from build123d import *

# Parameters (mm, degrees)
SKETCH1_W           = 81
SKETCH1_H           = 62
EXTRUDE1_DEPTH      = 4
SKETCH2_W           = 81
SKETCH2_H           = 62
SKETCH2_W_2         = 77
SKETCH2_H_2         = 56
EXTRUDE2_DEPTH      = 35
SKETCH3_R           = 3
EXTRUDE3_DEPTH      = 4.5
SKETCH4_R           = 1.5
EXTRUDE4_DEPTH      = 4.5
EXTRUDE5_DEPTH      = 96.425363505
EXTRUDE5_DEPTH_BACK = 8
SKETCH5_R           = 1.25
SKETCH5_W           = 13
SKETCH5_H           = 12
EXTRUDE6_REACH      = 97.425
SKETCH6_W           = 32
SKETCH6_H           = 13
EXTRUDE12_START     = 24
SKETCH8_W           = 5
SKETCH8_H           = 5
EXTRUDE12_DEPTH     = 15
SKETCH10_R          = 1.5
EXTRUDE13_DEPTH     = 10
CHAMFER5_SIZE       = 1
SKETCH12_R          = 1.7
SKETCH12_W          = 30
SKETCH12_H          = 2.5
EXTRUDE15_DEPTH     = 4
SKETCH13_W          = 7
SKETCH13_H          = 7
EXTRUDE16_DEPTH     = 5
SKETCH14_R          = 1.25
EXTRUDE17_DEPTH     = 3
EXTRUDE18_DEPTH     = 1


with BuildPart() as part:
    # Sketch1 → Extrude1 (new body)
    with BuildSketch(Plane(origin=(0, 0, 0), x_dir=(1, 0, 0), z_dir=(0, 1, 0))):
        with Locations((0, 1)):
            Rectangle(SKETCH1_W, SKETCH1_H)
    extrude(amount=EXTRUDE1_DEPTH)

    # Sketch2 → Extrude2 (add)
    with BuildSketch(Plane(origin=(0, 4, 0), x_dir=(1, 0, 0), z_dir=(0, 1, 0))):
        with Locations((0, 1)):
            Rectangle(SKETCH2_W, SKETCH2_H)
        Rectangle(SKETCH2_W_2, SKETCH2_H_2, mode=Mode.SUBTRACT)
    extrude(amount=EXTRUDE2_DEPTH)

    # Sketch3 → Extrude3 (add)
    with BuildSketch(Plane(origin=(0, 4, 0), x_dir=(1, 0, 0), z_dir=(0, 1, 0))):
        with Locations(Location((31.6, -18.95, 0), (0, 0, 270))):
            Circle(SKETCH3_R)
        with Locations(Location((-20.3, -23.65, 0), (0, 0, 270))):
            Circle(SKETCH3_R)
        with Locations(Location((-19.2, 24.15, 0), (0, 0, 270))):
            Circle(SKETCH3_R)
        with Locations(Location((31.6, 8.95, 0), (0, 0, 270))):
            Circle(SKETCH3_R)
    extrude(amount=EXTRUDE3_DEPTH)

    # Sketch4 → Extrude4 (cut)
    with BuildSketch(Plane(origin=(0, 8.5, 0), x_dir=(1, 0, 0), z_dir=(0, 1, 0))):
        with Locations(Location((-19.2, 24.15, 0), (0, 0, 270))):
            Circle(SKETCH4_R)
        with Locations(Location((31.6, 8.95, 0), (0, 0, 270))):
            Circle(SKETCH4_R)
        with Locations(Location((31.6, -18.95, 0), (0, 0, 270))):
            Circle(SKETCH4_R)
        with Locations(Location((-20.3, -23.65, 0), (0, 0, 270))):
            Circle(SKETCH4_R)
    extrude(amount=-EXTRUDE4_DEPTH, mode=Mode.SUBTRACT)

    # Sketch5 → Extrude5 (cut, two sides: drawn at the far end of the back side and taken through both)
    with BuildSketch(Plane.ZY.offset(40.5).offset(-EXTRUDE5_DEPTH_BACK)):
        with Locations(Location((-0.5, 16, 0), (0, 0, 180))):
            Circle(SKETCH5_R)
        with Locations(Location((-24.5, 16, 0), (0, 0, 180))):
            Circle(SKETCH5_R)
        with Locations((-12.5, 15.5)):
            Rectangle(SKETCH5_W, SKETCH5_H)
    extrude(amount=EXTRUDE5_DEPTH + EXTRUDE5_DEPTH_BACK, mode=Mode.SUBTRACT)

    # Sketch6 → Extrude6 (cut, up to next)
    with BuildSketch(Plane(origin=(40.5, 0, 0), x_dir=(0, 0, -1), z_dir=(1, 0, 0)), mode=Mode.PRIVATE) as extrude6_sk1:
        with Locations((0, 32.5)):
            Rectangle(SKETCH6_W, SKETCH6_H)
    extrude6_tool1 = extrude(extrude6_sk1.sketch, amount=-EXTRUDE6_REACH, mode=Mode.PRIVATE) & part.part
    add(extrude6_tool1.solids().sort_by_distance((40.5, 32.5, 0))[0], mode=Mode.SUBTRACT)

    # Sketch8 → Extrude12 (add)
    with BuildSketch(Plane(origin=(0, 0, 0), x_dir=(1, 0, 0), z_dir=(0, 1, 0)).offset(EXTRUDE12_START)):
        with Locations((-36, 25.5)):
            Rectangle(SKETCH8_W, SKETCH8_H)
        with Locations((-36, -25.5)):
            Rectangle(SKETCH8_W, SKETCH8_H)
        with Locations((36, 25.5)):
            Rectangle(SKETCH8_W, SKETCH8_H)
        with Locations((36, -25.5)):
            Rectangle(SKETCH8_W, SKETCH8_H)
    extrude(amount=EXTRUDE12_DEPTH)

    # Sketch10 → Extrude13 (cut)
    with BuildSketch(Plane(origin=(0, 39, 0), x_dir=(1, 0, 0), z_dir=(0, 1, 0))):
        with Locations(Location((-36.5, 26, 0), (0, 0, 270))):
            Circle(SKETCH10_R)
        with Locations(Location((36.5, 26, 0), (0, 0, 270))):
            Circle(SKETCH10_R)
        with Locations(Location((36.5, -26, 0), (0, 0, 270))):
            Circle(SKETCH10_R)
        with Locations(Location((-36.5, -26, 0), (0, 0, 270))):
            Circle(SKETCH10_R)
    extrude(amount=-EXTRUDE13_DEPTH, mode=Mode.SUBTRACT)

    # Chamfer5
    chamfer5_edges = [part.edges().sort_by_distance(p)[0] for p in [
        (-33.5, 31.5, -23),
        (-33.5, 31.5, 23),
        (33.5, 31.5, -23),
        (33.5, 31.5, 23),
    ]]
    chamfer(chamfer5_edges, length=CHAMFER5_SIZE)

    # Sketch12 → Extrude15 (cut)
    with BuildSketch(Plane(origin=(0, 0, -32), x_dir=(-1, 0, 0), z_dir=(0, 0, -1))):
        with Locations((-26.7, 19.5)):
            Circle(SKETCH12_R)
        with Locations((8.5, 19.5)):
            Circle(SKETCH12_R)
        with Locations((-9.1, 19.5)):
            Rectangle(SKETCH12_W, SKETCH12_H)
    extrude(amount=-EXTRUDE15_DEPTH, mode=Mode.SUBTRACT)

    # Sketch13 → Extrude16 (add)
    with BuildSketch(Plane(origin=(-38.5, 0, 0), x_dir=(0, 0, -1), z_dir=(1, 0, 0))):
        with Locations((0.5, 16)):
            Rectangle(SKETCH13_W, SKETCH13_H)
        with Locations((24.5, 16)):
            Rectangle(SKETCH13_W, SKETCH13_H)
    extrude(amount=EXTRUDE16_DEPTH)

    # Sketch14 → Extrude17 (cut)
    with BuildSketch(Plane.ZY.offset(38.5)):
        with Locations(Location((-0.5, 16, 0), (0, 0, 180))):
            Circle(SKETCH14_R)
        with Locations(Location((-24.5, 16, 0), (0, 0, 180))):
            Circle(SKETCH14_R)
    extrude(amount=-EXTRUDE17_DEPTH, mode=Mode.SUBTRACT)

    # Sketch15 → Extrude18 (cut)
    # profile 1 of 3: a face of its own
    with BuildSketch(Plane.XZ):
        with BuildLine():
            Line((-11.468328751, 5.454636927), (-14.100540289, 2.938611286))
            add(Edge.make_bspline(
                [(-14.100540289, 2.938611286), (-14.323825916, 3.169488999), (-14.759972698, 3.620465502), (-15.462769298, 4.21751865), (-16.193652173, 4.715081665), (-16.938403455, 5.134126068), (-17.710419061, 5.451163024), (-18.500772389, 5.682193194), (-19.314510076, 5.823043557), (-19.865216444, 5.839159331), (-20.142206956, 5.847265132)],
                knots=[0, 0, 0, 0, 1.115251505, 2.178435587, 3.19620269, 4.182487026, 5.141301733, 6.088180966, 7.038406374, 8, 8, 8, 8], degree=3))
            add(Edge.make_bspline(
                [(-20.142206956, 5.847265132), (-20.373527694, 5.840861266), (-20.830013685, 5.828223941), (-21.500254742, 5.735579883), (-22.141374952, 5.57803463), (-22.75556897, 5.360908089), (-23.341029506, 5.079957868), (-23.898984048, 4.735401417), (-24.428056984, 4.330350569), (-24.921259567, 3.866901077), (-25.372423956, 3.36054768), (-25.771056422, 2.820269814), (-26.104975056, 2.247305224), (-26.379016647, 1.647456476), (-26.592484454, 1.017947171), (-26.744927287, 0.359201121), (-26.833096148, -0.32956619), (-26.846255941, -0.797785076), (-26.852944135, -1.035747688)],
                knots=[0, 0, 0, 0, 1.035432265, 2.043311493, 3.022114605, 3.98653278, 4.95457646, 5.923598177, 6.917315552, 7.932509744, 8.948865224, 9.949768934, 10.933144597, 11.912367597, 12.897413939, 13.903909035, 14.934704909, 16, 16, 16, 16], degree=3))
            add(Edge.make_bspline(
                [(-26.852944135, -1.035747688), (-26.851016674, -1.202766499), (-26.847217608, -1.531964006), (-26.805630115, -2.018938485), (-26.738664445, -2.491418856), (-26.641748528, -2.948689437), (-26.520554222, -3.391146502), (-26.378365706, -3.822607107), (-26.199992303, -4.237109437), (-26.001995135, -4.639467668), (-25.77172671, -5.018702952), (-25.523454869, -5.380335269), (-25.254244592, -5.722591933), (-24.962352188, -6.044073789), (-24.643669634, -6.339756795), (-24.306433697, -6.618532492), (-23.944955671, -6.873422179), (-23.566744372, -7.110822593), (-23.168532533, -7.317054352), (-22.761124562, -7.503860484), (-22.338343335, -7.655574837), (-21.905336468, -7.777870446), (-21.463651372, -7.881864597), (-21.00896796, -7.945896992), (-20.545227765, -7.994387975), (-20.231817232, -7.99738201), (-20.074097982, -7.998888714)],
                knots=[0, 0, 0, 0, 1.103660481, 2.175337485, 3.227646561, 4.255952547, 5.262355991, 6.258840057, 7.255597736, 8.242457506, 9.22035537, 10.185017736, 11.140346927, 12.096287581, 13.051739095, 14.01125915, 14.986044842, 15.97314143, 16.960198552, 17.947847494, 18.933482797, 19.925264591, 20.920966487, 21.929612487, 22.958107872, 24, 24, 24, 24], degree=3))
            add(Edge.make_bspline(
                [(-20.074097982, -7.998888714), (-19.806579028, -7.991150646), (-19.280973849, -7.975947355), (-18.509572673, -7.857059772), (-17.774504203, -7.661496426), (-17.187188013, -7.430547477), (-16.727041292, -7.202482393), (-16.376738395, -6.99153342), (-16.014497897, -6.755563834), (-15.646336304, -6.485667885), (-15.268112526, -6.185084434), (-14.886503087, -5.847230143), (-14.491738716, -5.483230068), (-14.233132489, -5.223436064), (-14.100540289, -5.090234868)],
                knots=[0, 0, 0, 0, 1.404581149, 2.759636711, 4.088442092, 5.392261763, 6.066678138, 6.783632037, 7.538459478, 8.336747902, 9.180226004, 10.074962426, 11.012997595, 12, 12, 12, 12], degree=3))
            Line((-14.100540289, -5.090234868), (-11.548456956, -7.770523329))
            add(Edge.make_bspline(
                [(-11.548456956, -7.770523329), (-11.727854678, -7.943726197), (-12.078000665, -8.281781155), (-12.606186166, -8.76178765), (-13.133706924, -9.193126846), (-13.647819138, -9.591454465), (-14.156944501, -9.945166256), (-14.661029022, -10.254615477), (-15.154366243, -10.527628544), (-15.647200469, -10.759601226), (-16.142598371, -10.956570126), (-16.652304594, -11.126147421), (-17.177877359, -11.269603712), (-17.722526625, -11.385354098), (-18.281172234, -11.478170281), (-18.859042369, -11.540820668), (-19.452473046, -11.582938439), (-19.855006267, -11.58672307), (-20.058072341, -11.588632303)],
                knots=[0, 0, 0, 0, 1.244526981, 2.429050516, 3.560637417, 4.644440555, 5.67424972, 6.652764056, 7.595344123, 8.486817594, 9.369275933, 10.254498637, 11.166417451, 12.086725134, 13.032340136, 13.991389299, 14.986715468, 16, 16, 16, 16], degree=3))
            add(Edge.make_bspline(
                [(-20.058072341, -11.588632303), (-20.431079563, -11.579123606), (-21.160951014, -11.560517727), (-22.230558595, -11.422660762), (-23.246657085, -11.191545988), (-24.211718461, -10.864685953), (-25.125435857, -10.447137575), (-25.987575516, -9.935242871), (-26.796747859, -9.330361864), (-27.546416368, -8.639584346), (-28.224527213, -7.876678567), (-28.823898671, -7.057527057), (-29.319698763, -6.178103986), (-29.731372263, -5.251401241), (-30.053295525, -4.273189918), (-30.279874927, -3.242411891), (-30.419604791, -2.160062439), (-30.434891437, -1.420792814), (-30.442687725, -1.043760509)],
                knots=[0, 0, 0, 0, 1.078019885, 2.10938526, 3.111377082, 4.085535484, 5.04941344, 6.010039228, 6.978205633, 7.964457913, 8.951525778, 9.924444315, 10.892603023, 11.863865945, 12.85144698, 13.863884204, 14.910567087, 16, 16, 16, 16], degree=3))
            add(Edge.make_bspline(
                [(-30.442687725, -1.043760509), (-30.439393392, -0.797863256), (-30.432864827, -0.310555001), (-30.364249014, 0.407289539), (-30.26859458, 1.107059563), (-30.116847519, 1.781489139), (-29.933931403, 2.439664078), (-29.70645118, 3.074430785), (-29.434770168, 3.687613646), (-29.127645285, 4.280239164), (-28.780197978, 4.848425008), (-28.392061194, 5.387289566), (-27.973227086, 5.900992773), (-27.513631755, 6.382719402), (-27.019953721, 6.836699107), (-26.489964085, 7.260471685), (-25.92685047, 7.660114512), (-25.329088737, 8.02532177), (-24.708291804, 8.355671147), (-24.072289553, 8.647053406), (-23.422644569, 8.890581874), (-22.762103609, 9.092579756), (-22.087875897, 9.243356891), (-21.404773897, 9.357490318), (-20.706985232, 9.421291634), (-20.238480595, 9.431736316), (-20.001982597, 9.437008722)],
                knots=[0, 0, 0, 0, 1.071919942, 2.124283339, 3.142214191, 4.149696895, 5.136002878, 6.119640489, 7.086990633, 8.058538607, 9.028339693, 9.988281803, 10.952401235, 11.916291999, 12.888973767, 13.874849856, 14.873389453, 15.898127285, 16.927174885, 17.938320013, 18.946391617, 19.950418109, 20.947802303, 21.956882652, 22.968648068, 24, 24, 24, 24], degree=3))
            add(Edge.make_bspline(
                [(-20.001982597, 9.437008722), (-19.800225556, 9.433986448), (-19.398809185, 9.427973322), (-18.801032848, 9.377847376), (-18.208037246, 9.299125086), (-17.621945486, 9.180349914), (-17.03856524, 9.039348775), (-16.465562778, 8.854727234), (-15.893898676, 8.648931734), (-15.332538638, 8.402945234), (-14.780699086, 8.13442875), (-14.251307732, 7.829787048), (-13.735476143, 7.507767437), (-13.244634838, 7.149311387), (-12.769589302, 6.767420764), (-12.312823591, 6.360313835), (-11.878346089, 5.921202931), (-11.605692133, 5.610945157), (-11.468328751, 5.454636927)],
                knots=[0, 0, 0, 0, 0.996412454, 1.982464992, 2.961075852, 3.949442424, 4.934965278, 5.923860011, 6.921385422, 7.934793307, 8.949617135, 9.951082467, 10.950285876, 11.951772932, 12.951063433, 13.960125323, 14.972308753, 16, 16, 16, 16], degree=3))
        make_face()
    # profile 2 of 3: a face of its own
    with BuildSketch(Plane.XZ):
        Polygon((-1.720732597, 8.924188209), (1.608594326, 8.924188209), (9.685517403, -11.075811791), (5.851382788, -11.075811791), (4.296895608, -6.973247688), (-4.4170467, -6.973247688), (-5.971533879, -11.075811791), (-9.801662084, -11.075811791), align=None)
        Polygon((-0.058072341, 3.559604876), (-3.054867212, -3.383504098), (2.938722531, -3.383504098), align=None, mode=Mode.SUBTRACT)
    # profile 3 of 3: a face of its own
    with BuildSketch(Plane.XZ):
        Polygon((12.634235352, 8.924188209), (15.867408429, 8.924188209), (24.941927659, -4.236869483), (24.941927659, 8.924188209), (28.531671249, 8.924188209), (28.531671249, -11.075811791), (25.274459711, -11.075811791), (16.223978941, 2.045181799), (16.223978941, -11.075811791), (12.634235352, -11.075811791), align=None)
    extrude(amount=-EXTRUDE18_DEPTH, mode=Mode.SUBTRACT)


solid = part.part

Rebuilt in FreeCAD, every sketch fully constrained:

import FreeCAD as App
import Part
import Sketcher

V = App.Vector
Q = App.Units.Quantity


def edges_at(feature, points):
    """Names of the edges that pass closest to the given points."""
    edges = feature.Shape.Edges
    near = lambda p: min(range(len(edges)), key=lambda i: edges[i].distToShape(Part.Vertex(*p))[0])
    return sorted({f"Edge{near(p) + 1}" for p in points})

doc = App.newDocument("Part")
body = doc.addObject("PartDesign::Body", "Body")

sketch1 = body.newObject("Sketcher::SketchObject", "Sketch")
sketch1.AttachmentSupport = (doc.getObject("XZ_Plane"), [""])
sketch1.MapMode = "FlatFace"
sketch1.addGeometry(Part.LineSegment(V(-40.5, -32, 0), V(-40.5, 30, 0)), False)
sketch1.addGeometry(Part.LineSegment(V(-40.5, 30, 0), V(40.5, 30, 0)), False)
sketch1.addGeometry(Part.LineSegment(V(40.5, 30, 0), V(40.5, -32, 0)), False)
sketch1.addGeometry(Part.LineSegment(V(40.5, -32, 0), V(-40.5, -32, 0)), False)
sketch1.addConstraint(Sketcher.Constraint("Coincident", 0, 2, 1, 1))
sketch1.addConstraint(Sketcher.Constraint("Coincident", 1, 2, 2, 1))
sketch1.addConstraint(Sketcher.Constraint("Coincident", 2, 2, 3, 1))
sketch1.addConstraint(Sketcher.Constraint("Coincident", 3, 2, 0, 1))
sketch1.addConstraint(Sketcher.Constraint("Vertical", 0))
sketch1.addConstraint(Sketcher.Constraint("Horizontal", 1))
sketch1.addConstraint(Sketcher.Constraint("Vertical", 2))
sketch1.addConstraint(Sketcher.Constraint("Horizontal", 3))
sketch1.addConstraint(Sketcher.Constraint("DistanceX", 1, 1, 1, 2, Q("81 mm")))
sketch1.addConstraint(Sketcher.Constraint("DistanceY", 0, 1, 0, 2, Q("62 mm")))
sketch1.addConstraint(Sketcher.Constraint("DistanceY", -1, 1, 0, 2, Q("30 mm")))
sketch1.addConstraint(Sketcher.Constraint("DistanceX", 0, 2, -1, 1, Q("40.5 mm")))
pad1 = body.newObject("PartDesign::Pad", "Pad")
pad1.Profile = sketch1
pad1.Length = 4
pad1.Reversed = True

sketch2 = body.newObject("Sketcher::SketchObject", "Sketch001")
sketch2.AttachmentSupport = (doc.getObject("XZ_Plane"), [""])
sketch2.MapMode = "FlatFace"
sketch2.AttachmentOffset = App.Placement(V(0, 0, -4), App.Rotation())
sketch2.addGeometry(Part.LineSegment(V(-40.5, -32, 0), V(-40.5, 30, 0)), False)
sketch2.addGeometry(Part.LineSegment(V(-40.5, 30, 0), V(40.5, 30, 0)), False)
sketch2.addGeometry(Part.LineSegment(V(40.5, 30, 0), V(40.5, -32, 0)), False)
sketch2.addGeometry(Part.LineSegment(V(40.5, -32, 0), V(-40.5, -32, 0)), False)
sketch2.addGeometry(Part.LineSegment(V(38.5, 28, 0), V(-38.5, 28, 0)), False)
sketch2.addGeometry(Part.LineSegment(V(-38.5, 28, 0), V(-38.5, -28, 0)), False)
sketch2.addGeometry(Part.LineSegment(V(-38.5, -28, 0), V(38.5, -28, 0)), False)
sketch2.addGeometry(Part.LineSegment(V(38.5, -28, 0), V(38.5, 28, 0)), False)
sketch2.addConstraint(Sketcher.Constraint("Coincident", 0, 2, 1, 1))
sketch2.addConstraint(Sketcher.Constraint("Coincident", 1, 2, 2, 1))
sketch2.addConstraint(Sketcher.Constraint("Coincident", 2, 2, 3, 1))
sketch2.addConstraint(Sketcher.Constraint("Coincident", 3, 2, 0, 1))
sketch2.addConstraint(Sketcher.Constraint("Coincident", 4, 2, 5, 1))
sketch2.addConstraint(Sketcher.Constraint("Coincident", 5, 2, 6, 1))
sketch2.addConstraint(Sketcher.Constraint("Coincident", 6, 2, 7, 1))
sketch2.addConstraint(Sketcher.Constraint("Coincident", 7, 2, 4, 1))
sketch2.addConstraint(Sketcher.Constraint("Vertical", 0))
sketch2.addConstraint(Sketcher.Constraint("Horizontal", 1))
sketch2.addConstraint(Sketcher.Constraint("Vertical", 2))
sketch2.addConstraint(Sketcher.Constraint("Horizontal", 3))
sketch2.addConstraint(Sketcher.Constraint("Horizontal", 4))
sketch2.addConstraint(Sketcher.Constraint("Vertical", 5))
sketch2.addConstraint(Sketcher.Constraint("Horizontal", 6))
sketch2.addConstraint(Sketcher.Constraint("Vertical", 7))
sketch2.addConstraint(Sketcher.Constraint("Symmetric", 4, 2, 6, 2, -1, 1))
sketch2.addConstraint(Sketcher.Constraint("DistanceX", 1, 1, 1, 2, Q("81 mm")))
sketch2.addConstraint(Sketcher.Constraint("DistanceX", 4, 2, 4, 1, Q("77 mm")))
sketch2.addConstraint(Sketcher.Constraint("DistanceY", 0, 1, 0, 2, Q("62 mm")))
sketch2.addConstraint(Sketcher.Constraint("DistanceY", 5, 2, 5, 1, Q("56 mm")))
sketch2.addConstraint(Sketcher.Constraint("DistanceY", -1, 1, 0, 2, Q("30 mm")))
sketch2.addConstraint(Sketcher.Constraint("DistanceX", 0, 2, 4, 2, Q("2 mm")))
pad2 = body.newObject("PartDesign::Pad", "Pad001")
pad2.Profile = sketch2
pad2.Length = 35
pad2.Reversed = True

sketch3 = body.newObject("Sketcher::SketchObject", "Sketch002")
sketch3.AttachmentSupport = (doc.getObject("XZ_Plane"), [""])
sketch3.MapMode = "FlatFace"
sketch3.AttachmentOffset = App.Placement(V(0, 0, -4), App.Rotation())
sketch3.addGeometry(Part.Circle(V(31.6, 18.95, 0), V(0, 0, 1), 3), False)
sketch3.addGeometry(Part.Circle(V(-20.3, 23.65, 0), V(0, 0, 1), 3), False)
sketch3.addGeometry(Part.Circle(V(-19.2, -24.15, 0), V(0, 0, 1), 3), False)
sketch3.addGeometry(Part.Circle(V(31.6, -8.95, 0), V(0, 0, 1), 3), False)
sketch3.addConstraint(Sketcher.Constraint("Equal", 0, 1))
sketch3.addConstraint(Sketcher.Constraint("Equal", 1, 2))
sketch3.addConstraint(Sketcher.Constraint("Equal", 2, 3))
sketch3.addConstraint(Sketcher.Constraint("Vertical", 0, 3, 3, 3))
sketch3.addConstraint(Sketcher.Constraint("Diameter", 0, Q("6 mm")))
sketch3.addConstraint(Sketcher.Constraint("DistanceX", -1, 1, 0, 3, Q("31.6 mm")))
sketch3.addConstraint(Sketcher.Constraint("DistanceX", 1, 3, -1, 1, Q("20.3 mm")))
sketch3.addConstraint(Sketcher.Constraint("DistanceX", 2, 3, -1, 1, Q("19.2 mm")))
sketch3.addConstraint(Sketcher.Constraint("DistanceY", 0, 3, 1, 3, Q("4.7 mm")))
sketch3.addConstraint(Sketcher.Constraint("DistanceY", 2, 3, 1, 3, Q("47.8 mm")))
sketch3.addConstraint(Sketcher.Constraint("DistanceY", 3, 3, 0, 3, Q("27.9 mm")))
sketch3.addConstraint(Sketcher.Constraint("DistanceY", -1, 1, 0, 3, Q("18.95 mm")))
pad3 = body.newObject("PartDesign::Pad", "Pad002")
pad3.Profile = sketch3
pad3.Length = 4.5
pad3.Reversed = True

sketch4 = body.newObject("Sketcher::SketchObject", "Sketch003")
sketch4.AttachmentSupport = (doc.getObject("XZ_Plane"), [""])
sketch4.MapMode = "FlatFace"
sketch4.AttachmentOffset = App.Placement(V(0, 0, -8.5), App.Rotation())
sketch4.addGeometry(Part.Circle(V(-19.2, -24.15, 0), V(0, 0, 1), 1.5), False)
sketch4.addGeometry(Part.Circle(V(31.6, -8.95, 0), V(0, 0, 1), 1.5), False)
sketch4.addGeometry(Part.Circle(V(31.6, 18.95, 0), V(0, 0, 1), 1.5), False)
sketch4.addGeometry(Part.Circle(V(-20.3, 23.65, 0), V(0, 0, 1), 1.5), False)
sketch4.addConstraint(Sketcher.Constraint("Equal", 0, 1))
sketch4.addConstraint(Sketcher.Constraint("Equal", 1, 2))
sketch4.addConstraint(Sketcher.Constraint("Equal", 2, 3))
sketch4.addConstraint(Sketcher.Constraint("Vertical", 1, 3, 2, 3))
sketch4.addConstraint(Sketcher.Constraint("Diameter", 0, Q("3 mm")))
sketch4.addConstraint(Sketcher.Constraint("DistanceX", 0, 3, -1, 1, Q("19.2 mm")))
sketch4.addConstraint(Sketcher.Constraint("DistanceX", -1, 1, 1, 3, Q("31.6 mm")))
sketch4.addConstraint(Sketcher.Constraint("DistanceX", 3, 3, -1, 1, Q("20.3 mm")))
sketch4.addConstraint(Sketcher.Constraint("DistanceY", 0, 3, 1, 3, Q("15.2 mm")))
sketch4.addConstraint(Sketcher.Constraint("DistanceY", 1, 3, 2, 3, Q("27.9 mm")))
sketch4.addConstraint(Sketcher.Constraint("DistanceY", 0, 3, 3, 3, Q("47.8 mm")))
sketch4.addConstraint(Sketcher.Constraint("DistanceY", 0, 3, -1, 1, Q("24.15 mm")))
pocket1 = body.newObject("PartDesign::Pocket", "Pocket")
pocket1.Profile = sketch4
pocket1.Length = 4.5
pocket1.Reversed = True

sketch5 = body.newObject("Sketcher::SketchObject", "Sketch004")
sketch5.AttachmentSupport = (doc.getObject("YZ_Plane"), [""])
sketch5.MapMode = "FlatFace"
sketch5.AttachmentOffset = App.Placement(V(0, 0, -40.5), App.Rotation())
sketch5.addGeometry(Part.Circle(V(16, -0.5, 0), V(0, 0, 1), 1.25), False)
sketch5.addGeometry(Part.Circle(V(16, -24.5, 0), V(0, 0, 1), 1.25), False)
sketch5.addGeometry(Part.LineSegment(V(21.5, -19, 0), V(9.5, -19, 0)), False)
sketch5.addGeometry(Part.LineSegment(V(9.5, -19, 0), V(9.5, -6, 0)), False)
sketch5.addGeometry(Part.LineSegment(V(9.5, -6, 0), V(21.5, -6, 0)), False)
sketch5.addGeometry(Part.LineSegment(V(21.5, -6, 0), V(21.5, -19, 0)), False)
sketch5.addConstraint(Sketcher.Constraint("Coincident", 2, 2, 3, 1))
sketch5.addConstraint(Sketcher.Constraint("Coincident", 3, 2, 4, 1))
sketch5.addConstraint(Sketcher.Constraint("Coincident", 4, 2, 5, 1))
sketch5.addConstraint(Sketcher.Constraint("Coincident", 5, 2, 2, 1))
sketch5.addConstraint(Sketcher.Constraint("Horizontal", 2))
sketch5.addConstraint(Sketcher.Constraint("Vertical", 3))
sketch5.addConstraint(Sketcher.Constraint("Horizontal", 4))
sketch5.addConstraint(Sketcher.Constraint("Vertical", 5))
sketch5.addConstraint(Sketcher.Constraint("Equal", 0, 1))
sketch5.addConstraint(Sketcher.Constraint("Vertical", 0, 3, 1, 3))
sketch5.addConstraint(Sketcher.Constraint("Diameter", 0, Q("2.5 mm")))
sketch5.addConstraint(Sketcher.Constraint("DistanceX", 2, 2, 2, 1, Q("12 mm")))
sketch5.addConstraint(Sketcher.Constraint("DistanceY", 3, 1, 3, 2, Q("13 mm")))
sketch5.addConstraint(Sketcher.Constraint("DistanceX", -1, 1, 0, 3, Q("16 mm")))
sketch5.addConstraint(Sketcher.Constraint("DistanceY", 2, 2, -1, 1, Q("19 mm")))
sketch5.addConstraint(Sketcher.Constraint("DistanceY", 1, 3, 0, 3, Q("24 mm")))
sketch5.addConstraint(Sketcher.Constraint("DistanceY", 0, 3, -1, 1, Q("0.5 mm")))
sketch5.addConstraint(Sketcher.Constraint("DistanceX", -1, 1, 2, 2, Q("9.5 mm")))
pocket2 = body.newObject("PartDesign::Pocket", "Pocket001")
pocket2.Profile = sketch5
pocket2.Type = "TwoLengths"
pocket2.Length = 96.425364
pocket2.Length2 = 8

sketch6 = body.newObject("Sketcher::SketchObject", "Sketch005")
sketch6.AttachmentSupport = (doc.getObject("YZ_Plane"), [""])
sketch6.MapMode = "FlatFace"
sketch6.AttachmentOffset = App.Placement(V(0, 0, 40.5), App.Rotation())
sketch6.addGeometry(Part.LineSegment(V(39, 16, 0), V(26, 16, 0)), False)
sketch6.addGeometry(Part.LineSegment(V(26, 16, 0), V(26, -16, 0)), False)
sketch6.addGeometry(Part.LineSegment(V(26, -16, 0), V(39, -16, 0)), False)
sketch6.addGeometry(Part.LineSegment(V(39, -16, 0), V(39, 16, 0)), False)
sketch6.addConstraint(Sketcher.Constraint("Coincident", 0, 2, 1, 1))
sketch6.addConstraint(Sketcher.Constraint("Coincident", 1, 2, 2, 1))
sketch6.addConstraint(Sketcher.Constraint("Coincident", 2, 2, 3, 1))
sketch6.addConstraint(Sketcher.Constraint("Coincident", 3, 2, 0, 1))
sketch6.addConstraint(Sketcher.Constraint("Horizontal", 0))
sketch6.addConstraint(Sketcher.Constraint("Vertical", 1))
sketch6.addConstraint(Sketcher.Constraint("Horizontal", 2))
sketch6.addConstraint(Sketcher.Constraint("Vertical", 3))
sketch6.addConstraint(Sketcher.Constraint("DistanceX", 0, 2, 0, 1, Q("13 mm")))
sketch6.addConstraint(Sketcher.Constraint("DistanceY", 1, 2, 1, 1, Q("32 mm")))
sketch6.addConstraint(Sketcher.Constraint("DistanceX", -1, 1, 0, 2, Q("26 mm")))
sketch6.addConstraint(Sketcher.Constraint("DistanceY", -1, 1, 0, 2, Q("16 mm")))
pocket3 = body.newObject("PartDesign::Pocket", "Pocket002")
pocket3.Profile = sketch6
pocket3.Type = "UpToFirst"

sketch7 = body.newObject("Sketcher::SketchObject", "Sketch006")
sketch7.AttachmentSupport = (doc.getObject("XZ_Plane"), [""])
sketch7.MapMode = "FlatFace"
sketch7.AttachmentOffset = App.Placement(V(0, 0, -24), App.Rotation())
sketch7.addGeometry(Part.LineSegment(V(-38.5, -28, 0), V(-38.5, -23, 0)), False)
sketch7.addGeometry(Part.LineSegment(V(-38.5, -23, 0), V(-33.5, -23, 0)), False)
sketch7.addGeometry(Part.LineSegment(V(-33.5, -23, 0), V(-33.5, -28, 0)), False)
sketch7.addGeometry(Part.LineSegment(V(-33.5, -28, 0), V(-38.5, -28, 0)), False)
sketch7.addGeometry(Part.LineSegment(V(-38.5, 23, 0), V(-38.5, 28, 0)), False)
sketch7.addGeometry(Part.LineSegment(V(-38.5, 28, 0), V(-33.5, 28, 0)), False)
sketch7.addGeometry(Part.LineSegment(V(-33.5, 28, 0), V(-33.5, 23, 0)), False)
sketch7.addGeometry(Part.LineSegment(V(-33.5, 23, 0), V(-38.5, 23, 0)), False)
sketch7.addGeometry(Part.LineSegment(V(33.5, -28, 0), V(33.5, -23, 0)), False)
sketch7.addGeometry(Part.LineSegment(V(33.5, -23, 0), V(38.5, -23, 0)), False)
sketch7.addGeometry(Part.LineSegment(V(38.5, -23, 0), V(38.5, -28, 0)), False)
sketch7.addGeometry(Part.LineSegment(V(38.5, -28, 0), V(33.5, -28, 0)), False)
sketch7.addGeometry(Part.LineSegment(V(33.5, 23, 0), V(33.5, 28, 0)), False)
sketch7.addGeometry(Part.LineSegment(V(33.5, 28, 0), V(38.5, 28, 0)), False)
sketch7.addGeometry(Part.LineSegment(V(38.5, 28, 0), V(38.5, 23, 0)), False)
sketch7.addGeometry(Part.LineSegment(V(38.5, 23, 0), V(33.5, 23, 0)), False)
sketch7.addConstraint(Sketcher.Constraint("Coincident", 0, 2, 1, 1))
sketch7.addConstraint(Sketcher.Constraint("Coincident", 1, 2, 2, 1))
sketch7.addConstraint(Sketcher.Constraint("Coincident", 2, 2, 3, 1))
sketch7.addConstraint(Sketcher.Constraint("Coincident", 3, 2, 0, 1))
sketch7.addConstraint(Sketcher.Constraint("Coincident", 4, 2, 5, 1))
sketch7.addConstraint(Sketcher.Constraint("Coincident", 5, 2, 6, 1))
sketch7.addConstraint(Sketcher.Constraint("Coincident", 6, 2, 7, 1))
sketch7.addConstraint(Sketcher.Constraint("Coincident", 7, 2, 4, 1))
sketch7.addConstraint(Sketcher.Constraint("Coincident", 8, 2, 9, 1))
sketch7.addConstraint(Sketcher.Constraint("Coincident", 9, 2, 10, 1))
sketch7.addConstraint(Sketcher.Constraint("Coincident", 10, 2, 11, 1))
sketch7.addConstraint(Sketcher.Constraint("Coincident", 11, 2, 8, 1))
sketch7.addConstraint(Sketcher.Constraint("Coincident", 12, 2, 13, 1))
sketch7.addConstraint(Sketcher.Constraint("Coincident", 13, 2, 14, 1))
sketch7.addConstraint(Sketcher.Constraint("Coincident", 14, 2, 15, 1))
sketch7.addConstraint(Sketcher.Constraint("Coincident", 15, 2, 12, 1))
sketch7.addConstraint(Sketcher.Constraint("Vertical", 0))
sketch7.addConstraint(Sketcher.Constraint("Horizontal", 1))
sketch7.addConstraint(Sketcher.Constraint("Vertical", 2))
sketch7.addConstraint(Sketcher.Constraint("Horizontal", 3))
sketch7.addConstraint(Sketcher.Constraint("Vertical", 4))
sketch7.addConstraint(Sketcher.Constraint("Horizontal", 5))
sketch7.addConstraint(Sketcher.Constraint("Vertical", 6))
sketch7.addConstraint(Sketcher.Constraint("Horizontal", 7))
sketch7.addConstraint(Sketcher.Constraint("Vertical", 8))
sketch7.addConstraint(Sketcher.Constraint("Horizontal", 9))
sketch7.addConstraint(Sketcher.Constraint("Vertical", 10))
sketch7.addConstraint(Sketcher.Constraint("Horizontal", 11))
sketch7.addConstraint(Sketcher.Constraint("Vertical", 12))
sketch7.addConstraint(Sketcher.Constraint("Horizontal", 13))
sketch7.addConstraint(Sketcher.Constraint("Vertical", 14))
sketch7.addConstraint(Sketcher.Constraint("Horizontal", 15))
sketch7.addConstraint(Sketcher.Constraint("Symmetric", 6, 2, 8, 2, -1, 1))
sketch7.addConstraint(Sketcher.Constraint("Symmetric", 4, 2, 10, 2, -1, 1))
sketch7.addConstraint(Sketcher.Constraint("Symmetric", 2, 2, 12, 2, -1, 1))
sketch7.addConstraint(Sketcher.Constraint("Symmetric", 0, 2, 14, 2, -1, 1))
sketch7.addConstraint(Sketcher.Constraint("Symmetric", 1, 2, 8, 2, -2))
sketch7.addConstraint(Sketcher.Constraint("Symmetric", 3, 2, 10, 2, -2))
sketch7.addConstraint(Sketcher.Constraint("Equal", 15, 0))
sketch7.addConstraint(Sketcher.Constraint("DistanceX", 1, 1, 1, 2, Q("5 mm")))
sketch7.addConstraint(Sketcher.Constraint("DistanceY", 0, 2, -1, 1, Q("23 mm")))
sketch7.addConstraint(Sketcher.Constraint("DistanceX", 1, 2, 8, 2, Q("67 mm")))
pad4 = body.newObject("PartDesign::Pad", "Pad003")
pad4.Profile = sketch7
pad4.Length = 15
pad4.Reversed = True

sketch8 = body.newObject("Sketcher::SketchObject", "Sketch007")
sketch8.AttachmentSupport = (doc.getObject("XZ_Plane"), [""])
sketch8.MapMode = "FlatFace"
sketch8.AttachmentOffset = App.Placement(V(0, 0, -39), App.Rotation())
sketch8.addGeometry(Part.Circle(V(-36.5, -26, 0), V(0, 0, 1), 1.5), False)
sketch8.addGeometry(Part.Circle(V(36.5, -26, 0), V(0, 0, 1), 1.5), False)
sketch8.addGeometry(Part.Circle(V(36.5, 26, 0), V(0, 0, 1), 1.5), False)
sketch8.addGeometry(Part.Circle(V(-36.5, 26, 0), V(0, 0, 1), 1.5), False)
sketch8.addConstraint(Sketcher.Constraint("Equal", 0, 1))
sketch8.addConstraint(Sketcher.Constraint("Equal", 1, 2))
sketch8.addConstraint(Sketcher.Constraint("Equal", 2, 3))
sketch8.addConstraint(Sketcher.Constraint("Symmetric", 0, 3, 2, 3, -1, 1))
sketch8.addConstraint(Sketcher.Constraint("Symmetric", 1, 3, 3, 3, -1, 1))
sketch8.addConstraint(Sketcher.Constraint("Symmetric", 0, 3, 1, 3, -2))
sketch8.addConstraint(Sketcher.Constraint("Diameter", 0, Q("3 mm")))
sketch8.addConstraint(Sketcher.Constraint("DistanceY", 0, 3, -1, 1, Q("26 mm")))
sketch8.addConstraint(Sketcher.Constraint("DistanceX", 0, 3, 1, 3, Q("73 mm")))
pocket4 = body.newObject("PartDesign::Pocket", "Pocket003")
pocket4.Profile = sketch8
pocket4.Length = 10
pocket4.Reversed = True
doc.recompute()

chamfer = body.newObject("PartDesign::Chamfer", "Chamfer")
chamfer.Base = (pocket4, edges_at(pocket4, [
    (-33.5, 31.5, -23),
    (-33.5, 31.5, 23),
    (33.5, 31.5, -23),
    (33.5, 31.5, 23),
]))
chamfer.Size = 1

sketch9 = body.newObject("Sketcher::SketchObject", "Sketch008")
sketch9.AttachmentSupport = (doc.getObject("XY_Plane"), [""])
sketch9.MapMode = "FlatFace"
sketch9.AttachmentOffset = App.Placement(V(0, 0, -32), App.Rotation())
sketch9.addGeometry(Part.Circle(V(26.7, 19.5, 0), V(0, 0, 1), 1.7), False)
sketch9.addGeometry(Part.Circle(V(-8.5, 19.5, 0), V(0, 0, 1), 1.7), False)
sketch9.addGeometry(Part.LineSegment(V(24.1, 20.75, 0), V(24.1, 18.25, 0)), False)
sketch9.addGeometry(Part.LineSegment(V(24.1, 18.25, 0), V(-5.9, 18.25, 0)), False)
sketch9.addGeometry(Part.LineSegment(V(-5.9, 18.25, 0), V(-5.9, 20.75, 0)), False)
sketch9.addGeometry(Part.LineSegment(V(-5.9, 20.75, 0), V(24.1, 20.75, 0)), False)
sketch9.addConstraint(Sketcher.Constraint("Coincident", 2, 2, 3, 1))
sketch9.addConstraint(Sketcher.Constraint("Coincident", 3, 2, 4, 1))
sketch9.addConstraint(Sketcher.Constraint("Coincident", 4, 2, 5, 1))
sketch9.addConstraint(Sketcher.Constraint("Coincident", 5, 2, 2, 1))
sketch9.addConstraint(Sketcher.Constraint("Vertical", 2))
sketch9.addConstraint(Sketcher.Constraint("Horizontal", 3))
sketch9.addConstraint(Sketcher.Constraint("Vertical", 4))
sketch9.addConstraint(Sketcher.Constraint("Horizontal", 5))
sketch9.addConstraint(Sketcher.Constraint("Equal", 0, 1))
sketch9.addConstraint(Sketcher.Constraint("Horizontal", 0, 3, 1, 3))
sketch9.addConstraint(Sketcher.Constraint("Diameter", 0, Q("3.4 mm")))
sketch9.addConstraint(Sketcher.Constraint("DistanceX", 3, 2, 3, 1, Q("30 mm")))
sketch9.addConstraint(Sketcher.Constraint("DistanceY", 2, 2, 2, 1, Q("2.5 mm")))
sketch9.addConstraint(Sketcher.Constraint("DistanceX", -1, 1, 0, 3, Q("26.7 mm")))
sketch9.addConstraint(Sketcher.Constraint("DistanceY", -1, 1, 0, 3, Q("19.5 mm")))
sketch9.addConstraint(Sketcher.Constraint("DistanceX", 1, 3, -1, 1, Q("8.5 mm")))
sketch9.addConstraint(Sketcher.Constraint("DistanceX", -1, 1, 2, 2, Q("24.1 mm")))
sketch9.addConstraint(Sketcher.Constraint("DistanceY", -1, 1, 2, 2, Q("18.25 mm")))
pocket5 = body.newObject("PartDesign::Pocket", "Pocket004")
pocket5.Profile = sketch9
pocket5.Length = 4
pocket5.Reversed = True

sketch10 = body.newObject("Sketcher::SketchObject", "Sketch009")
sketch10.AttachmentSupport = (doc.getObject("YZ_Plane"), [""])
sketch10.MapMode = "FlatFace"
sketch10.AttachmentOffset = App.Placement(V(0, 0, -38.5), App.Rotation())
sketch10.addGeometry(Part.LineSegment(V(19.5, 3, 0), V(12.5, 3, 0)), False)
sketch10.addGeometry(Part.LineSegment(V(12.5, 3, 0), V(12.5, -4, 0)), False)
sketch10.addGeometry(Part.LineSegment(V(12.5, -4, 0), V(19.5, -4, 0)), False)
sketch10.addGeometry(Part.LineSegment(V(19.5, -4, 0), V(19.5, 3, 0)), False)
sketch10.addGeometry(Part.LineSegment(V(19.5, -21, 0), V(12.5, -21, 0)), False)
sketch10.addGeometry(Part.LineSegment(V(12.5, -21, 0), V(12.5, -28, 0)), False)
sketch10.addGeometry(Part.LineSegment(V(12.5, -28, 0), V(19.5, -28, 0)), False)
sketch10.addGeometry(Part.LineSegment(V(19.5, -28, 0), V(19.5, -21, 0)), False)
sketch10.addConstraint(Sketcher.Constraint("Coincident", 0, 2, 1, 1))
sketch10.addConstraint(Sketcher.Constraint("Coincident", 1, 2, 2, 1))
sketch10.addConstraint(Sketcher.Constraint("Coincident", 2, 2, 3, 1))
sketch10.addConstraint(Sketcher.Constraint("Coincident", 3, 2, 0, 1))
sketch10.addConstraint(Sketcher.Constraint("Coincident", 4, 2, 5, 1))
sketch10.addConstraint(Sketcher.Constraint("Coincident", 5, 2, 6, 1))
sketch10.addConstraint(Sketcher.Constraint("Coincident", 6, 2, 7, 1))
sketch10.addConstraint(Sketcher.Constraint("Coincident", 7, 2, 4, 1))
sketch10.addConstraint(Sketcher.Constraint("Horizontal", 0))
sketch10.addConstraint(Sketcher.Constraint("Vertical", 1))
sketch10.addConstraint(Sketcher.Constraint("Horizontal", 2))
sketch10.addConstraint(Sketcher.Constraint("Vertical", 3))
sketch10.addConstraint(Sketcher.Constraint("Horizontal", 4))
sketch10.addConstraint(Sketcher.Constraint("Vertical", 5))
sketch10.addConstraint(Sketcher.Constraint("Horizontal", 6))
sketch10.addConstraint(Sketcher.Constraint("Vertical", 7))
sketch10.addConstraint(Sketcher.Constraint("Vertical", 1, 2, 4, 2))
sketch10.addConstraint(Sketcher.Constraint("Vertical", 3, 2, 6, 2))
sketch10.addConstraint(Sketcher.Constraint("Equal", 6, 1))
sketch10.addConstraint(Sketcher.Constraint("Equal", 3, 5))
sketch10.addConstraint(Sketcher.Constraint("DistanceX", 0, 2, 0, 1, Q("7 mm")))
sketch10.addConstraint(Sketcher.Constraint("DistanceY", -1, 1, 0, 2, Q("3 mm")))
sketch10.addConstraint(Sketcher.Constraint("DistanceY", 4, 2, -1, 1, Q("21 mm")))
sketch10.addConstraint(Sketcher.Constraint("DistanceX", -1, 1, 0, 2, Q("12.5 mm")))
pad5 = body.newObject("PartDesign::Pad", "Pad004")
pad5.Profile = sketch10
pad5.Length = 5

sketch11 = body.newObject("Sketcher::SketchObject", "Sketch010")
sketch11.AttachmentSupport = (doc.getObject("YZ_Plane"), [""])
sketch11.MapMode = "FlatFace"
sketch11.AttachmentOffset = App.Placement(V(0, 0, -38.5), App.Rotation())
sketch11.addGeometry(Part.Circle(V(16, -0.5, 0), V(0, 0, 1), 1.25), False)
sketch11.addGeometry(Part.Circle(V(16, -24.5, 0), V(0, 0, 1), 1.25), False)
sketch11.addConstraint(Sketcher.Constraint("Equal", 0, 1))
sketch11.addConstraint(Sketcher.Constraint("Vertical", 0, 3, 1, 3))
sketch11.addConstraint(Sketcher.Constraint("Diameter", 0, Q("2.5 mm")))
sketch11.addConstraint(Sketcher.Constraint("DistanceX", -1, 1, 0, 3, Q("16 mm")))
sketch11.addConstraint(Sketcher.Constraint("DistanceY", 1, 3, 0, 3, Q("24 mm")))
sketch11.addConstraint(Sketcher.Constraint("DistanceY", 0, 3, -1, 1, Q("0.5 mm")))
pocket6 = body.newObject("PartDesign::Pocket", "Pocket005")
pocket6.Profile = sketch11
pocket6.Length = 3
pocket6.Reversed = True

sketch12 = body.newObject("Sketcher::SketchObject", "Sketch011")
sketch12.AttachmentSupport = (doc.getObject("XZ_Plane"), [""])
sketch12.MapMode = "FlatFace"
sketch12.addGeometry(Part.LineSegment(V(-14.10054, 2.938611, 0), V(-11.468329, 5.454637, 0)), False)
sketch12.addGeometry(Part.BSplineCurve([V(-20.001983, 9.437009, 0), V(-19.800226, 9.433986, 0), V(-19.398809, 9.427973, 0), V(-18.801033, 9.377847, 0), V(-18.208037, 9.299125, 0), V(-17.621945, 9.18035, 0), V(-17.038565, 9.039349, 0), V(-16.465563, 8.854727, 0), V(-15.893899, 8.648932, 0), V(-15.332539, 8.402945, 0), V(-14.780699, 8.134429, 0), V(-14.251308, 7.829787, 0), V(-13.735476, 7.507767, 0), V(-13.244635, 7.149311, 0), V(-12.769589, 6.767421, 0), V(-12.312824, 6.360314, 0), V(-11.878346, 5.921203, 0), V(-11.605692, 5.610945, 0), V(-11.468329, 5.454637, 0)], [4, 1, 1, 1, 1, 1, 1, 1, 1, 1, 1, 1, 1, 1, 1, 1, 4], [0, 0.996412454, 1.982464992, 2.961075852, 3.949442424, 4.934965278, 5.923860011, 6.921385422, 7.934793307, 8.949617135, 9.951082467, 10.950285876, 11.951772932, 12.951063433, 13.960125323, 14.972308753, 16], False, 3, [1, 1, 1, 1, 1, 1, 1, 1, 1, 1, 1, 1, 1, 1, 1, 1, 1, 1, 1], False), False)
sketch12.addGeometry(Part.BSplineCurve([V(-30.442688, -1.043761, 0), V(-30.439393, -0.797863, 0), V(-30.432865, -0.310555, 0), V(-30.364249, 0.40729, 0), V(-30.268595, 1.10706, 0), V(-30.116848, 1.781489, 0), V(-29.933931, 2.439664, 0), V(-29.706451, 3.074431, 0), V(-29.43477, 3.687614, 0), V(-29.127645, 4.280239, 0), V(-28.780198, 4.848425, 0), V(-28.392061, 5.38729, 0), V(-27.973227, 5.900993, 0), V(-27.513632, 6.382719, 0), V(-27.019954, 6.836699, 0), V(-26.489964, 7.260472, 0), V(-25.92685, 7.660115, 0), V(-25.329089, 8.025322, 0), V(-24.708292, 8.355671, 0), V(-24.07229, 8.647053, 0), V(-23.422645, 8.890582, 0), V(-22.762104, 9.09258, 0), V(-22.087876, 9.243357, 0), V(-21.404774, 9.35749, 0), V(-20.706985, 9.421292, 0), V(-20.238481, 9.431736, 0), V(-20.001983, 9.437009, 0)], [4, 1, 1, 1, 1, 1, 1, 1, 1, 1, 1, 1, 1, 1, 1, 1, 1, 1, 1, 1, 1, 1, 1, 1, 4], [0, 1.071919942, 2.124283339, 3.142214191, 4.149696895, 5.136002878, 6.119640489, 7.086990633, 8.058538607, 9.028339693, 9.988281803, 10.952401235, 11.916291999, 12.888973767, 13.874849856, 14.873389453, 15.898127285, 16.927174885, 17.938320013, 18.946391617, 19.950418109, 20.947802303, 21.956882652, 22.968648068, 24], False, 3, [1, 1, 1, 1, 1, 1, 1, 1, 1, 1, 1, 1, 1, 1, 1, 1, 1, 1, 1, 1, 1, 1, 1, 1, 1, 1, 1], False), False)
sketch12.addGeometry(Part.BSplineCurve([V(-20.058072, -11.588632, 0), V(-20.43108, -11.579124, 0), V(-21.160951, -11.560518, 0), V(-22.230559, -11.422661, 0), V(-23.246657, -11.191546, 0), V(-24.211718, -10.864686, 0), V(-25.125436, -10.447138, 0), V(-25.987576, -9.935243, 0), V(-26.796748, -9.330362, 0), V(-27.546416, -8.639584, 0), V(-28.224527, -7.876679, 0), V(-28.823899, -7.057527, 0), V(-29.319699, -6.178104, 0), V(-29.731372, -5.251401, 0), V(-30.053296, -4.27319, 0), V(-30.279875, -3.242412, 0), V(-30.419605, -2.160062, 0), V(-30.434891, -1.420793, 0), V(-30.442688, -1.043761, 0)], [4, 1, 1, 1, 1, 1, 1, 1, 1, 1, 1, 1, 1, 1, 1, 1, 4], [0, 1.078019885, 2.10938526, 3.111377082, 4.085535484, 5.04941344, 6.010039228, 6.978205633, 7.964457913, 8.951525778, 9.924444315, 10.892603023, 11.863865945, 12.85144698, 13.863884204, 14.910567087, 16], False, 3, [1, 1, 1, 1, 1, 1, 1, 1, 1, 1, 1, 1, 1, 1, 1, 1, 1, 1, 1], False), False)
sketch12.addGeometry(Part.BSplineCurve([V(-11.548457, -7.770523, 0), V(-11.727855, -7.943726, 0), V(-12.078001, -8.281781, 0), V(-12.606186, -8.761788, 0), V(-13.133707, -9.193127, 0), V(-13.647819, -9.591454, 0), V(-14.156945, -9.945166, 0), V(-14.661029, -10.254615, 0), V(-15.154366, -10.527629, 0), V(-15.6472, -10.759601, 0), V(-16.142598, -10.95657, 0), V(-16.652305, -11.126147, 0), V(-17.177877, -11.269604, 0), V(-17.722527, -11.385354, 0), V(-18.281172, -11.47817, 0), V(-18.859042, -11.540821, 0), V(-19.452473, -11.582938, 0), V(-19.855006, -11.586723, 0), V(-20.058072, -11.588632, 0)], [4, 1, 1, 1, 1, 1, 1, 1, 1, 1, 1, 1, 1, 1, 1, 1, 4], [0, 1.244526981, 2.429050516, 3.560637417, 4.644440555, 5.67424972, 6.652764056, 7.595344123, 8.486817594, 9.369275933, 10.254498637, 11.166417451, 12.086725134, 13.032340136, 13.991389299, 14.986715468, 16], False, 3, [1, 1, 1, 1, 1, 1, 1, 1, 1, 1, 1, 1, 1, 1, 1, 1, 1, 1, 1], False), False)
sketch12.addGeometry(Part.LineSegment(V(-11.548457, -7.770523, 0), V(-14.10054, -5.090235, 0)), False)
sketch12.addGeometry(Part.BSplineCurve([V(-20.074098, -7.998889, 0), V(-19.806579, -7.991151, 0), V(-19.280974, -7.975947, 0), V(-18.509573, -7.85706, 0), V(-17.774504, -7.661496, 0), V(-17.187188, -7.430547, 0), V(-16.727041, -7.202482, 0), V(-16.376738, -6.991533, 0), V(-16.014498, -6.755564, 0), V(-15.646336, -6.485668, 0), V(-15.268113, -6.185084, 0), V(-14.886503, -5.84723, 0), V(-14.491739, -5.48323, 0), V(-14.233132, -5.223436, 0), V(-14.10054, -5.090235, 0)], [4, 1, 1, 1, 1, 1, 1, 1, 1, 1, 1, 1, 4], [0, 1.404581149, 2.759636711, 4.088442092, 5.392261763, 6.066678138, 6.783632037, 7.538459478, 8.336747902, 9.180226004, 10.074962426, 11.012997595, 12], False, 3, [1, 1, 1, 1, 1, 1, 1, 1, 1, 1, 1, 1, 1, 1, 1], False), False)
sketch12.addGeometry(Part.BSplineCurve([V(-26.852944, -1.035748, 0), V(-26.851017, -1.202766, 0), V(-26.847218, -1.531964, 0), V(-26.80563, -2.018938, 0), V(-26.738664, -2.491419, 0), V(-26.641749, -2.948689, 0), V(-26.520554, -3.391147, 0), V(-26.378366, -3.822607, 0), V(-26.199992, -4.237109, 0), V(-26.001995, -4.639468, 0), V(-25.771727, -5.018703, 0), V(-25.523455, -5.380335, 0), V(-25.254245, -5.722592, 0), V(-24.962352, -6.044074, 0), V(-24.64367, -6.339757, 0), V(-24.306434, -6.618532, 0), V(-23.944956, -6.873422, 0), V(-23.566744, -7.110823, 0), V(-23.168533, -7.317054, 0), V(-22.761125, -7.50386, 0), V(-22.338343, -7.655575, 0), V(-21.905336, -7.77787, 0), V(-21.463651, -7.881865, 0), V(-21.008968, -7.945897, 0), V(-20.545228, -7.994388, 0), V(-20.231817, -7.997382, 0), V(-20.074098, -7.998889, 0)], [4, 1, 1, 1, 1, 1, 1, 1, 1, 1, 1, 1, 1, 1, 1, 1, 1, 1, 1, 1, 1, 1, 1, 1, 4], [0, 1.103660481, 2.175337485, 3.227646561, 4.255952547, 5.262355991, 6.258840057, 7.255597736, 8.242457506, 9.22035537, 10.185017736, 11.140346927, 12.096287581, 13.051739095, 14.01125915, 14.986044842, 15.97314143, 16.960198552, 17.947847494, 18.933482797, 19.925264591, 20.920966487, 21.929612487, 22.958107872, 24], False, 3, [1, 1, 1, 1, 1, 1, 1, 1, 1, 1, 1, 1, 1, 1, 1, 1, 1, 1, 1, 1, 1, 1, 1, 1, 1, 1, 1], False), False)
sketch12.addGeometry(Part.BSplineCurve([V(-20.142207, 5.847265, 0), V(-20.373528, 5.840861, 0), V(-20.830014, 5.828224, 0), V(-21.500255, 5.73558, 0), V(-22.141375, 5.578035, 0), V(-22.755569, 5.360908, 0), V(-23.34103, 5.079958, 0), V(-23.898984, 4.735401, 0), V(-24.428057, 4.330351, 0), V(-24.92126, 3.866901, 0), V(-25.372424, 3.360548, 0), V(-25.771056, 2.82027, 0), V(-26.104975, 2.247305, 0), V(-26.379017, 1.647456, 0), V(-26.592484, 1.017947, 0), V(-26.744927, 0.359201, 0), V(-26.833096, -0.329566, 0), V(-26.846256, -0.797785, 0), V(-26.852944, -1.035748, 0)], [4, 1, 1, 1, 1, 1, 1, 1, 1, 1, 1, 1, 1, 1, 1, 1, 4], [0, 1.035432265, 2.043311493, 3.022114605, 3.98653278, 4.95457646, 5.923598177, 6.917315552, 7.932509744, 8.948865224, 9.949768934, 10.933144597, 11.912367597, 12.897413939, 13.903909035, 14.934704909, 16], False, 3, [1, 1, 1, 1, 1, 1, 1, 1, 1, 1, 1, 1, 1, 1, 1, 1, 1, 1, 1], False), False)
sketch12.addGeometry(Part.BSplineCurve([V(-14.10054, 2.938611, 0), V(-14.323826, 3.169489, 0), V(-14.759973, 3.620466, 0), V(-15.462769, 4.217519, 0), V(-16.193652, 4.715082, 0), V(-16.938403, 5.134126, 0), V(-17.710419, 5.451163, 0), V(-18.500772, 5.682193, 0), V(-19.31451, 5.823044, 0), V(-19.865216, 5.839159, 0), V(-20.142207, 5.847265, 0)], [4, 1, 1, 1, 1, 1, 1, 1, 4], [0, 1.115251505, 2.178435587, 3.19620269, 4.182487026, 5.141301733, 6.088180966, 7.038406374, 8], False, 3, [1, 1, 1, 1, 1, 1, 1, 1, 1, 1, 1], False), False)
sketch12.addGeometry(Part.LineSegment(V(1.608594, 8.924188, 0), V(-1.720733, 8.924188, 0)), False)
sketch12.addGeometry(Part.LineSegment(V(-1.720733, 8.924188, 0), V(-9.801662, -11.075812, 0)), False)
sketch12.addGeometry(Part.LineSegment(V(-9.801662, -11.075812, 0), V(-5.971534, -11.075812, 0)), False)
sketch12.addGeometry(Part.LineSegment(V(-5.971534, -11.075812, 0), V(-4.417047, -6.973248, 0)), False)
sketch12.addGeometry(Part.LineSegment(V(-4.417047, -6.973248, 0), V(4.296896, -6.973248, 0)), False)
sketch12.addGeometry(Part.LineSegment(V(4.296896, -6.973248, 0), V(5.851383, -11.075812, 0)), False)
sketch12.addGeometry(Part.LineSegment(V(5.851383, -11.075812, 0), V(9.685517, -11.075812, 0)), False)
sketch12.addGeometry(Part.LineSegment(V(9.685517, -11.075812, 0), V(1.608594, 8.924188, 0)), False)
sketch12.addGeometry(Part.LineSegment(V(-0.058072, 3.559605, 0), V(2.938723, -3.383504, 0)), False)
sketch12.addGeometry(Part.LineSegment(V(2.938723, -3.383504, 0), V(-3.054867, -3.383504, 0)), False)
sketch12.addGeometry(Part.LineSegment(V(-3.054867, -3.383504, 0), V(-0.058072, 3.559605, 0)), False)
sketch12.addGeometry(Part.LineSegment(V(15.867408, 8.924188, 0), V(12.634235, 8.924188, 0)), False)
sketch12.addGeometry(Part.LineSegment(V(12.634235, 8.924188, 0), V(12.634235, -11.075812, 0)), False)
sketch12.addGeometry(Part.LineSegment(V(12.634235, -11.075812, 0), V(16.223979, -11.075812, 0)), False)
sketch12.addGeometry(Part.LineSegment(V(16.223979, -11.075812, 0), V(16.223979, 2.045182, 0)), False)
sketch12.addGeometry(Part.LineSegment(V(16.223979, 2.045182, 0), V(25.27446, -11.075812, 0)), False)
sketch12.addGeometry(Part.LineSegment(V(25.27446, -11.075812, 0), V(28.531671, -11.075812, 0)), False)
sketch12.addGeometry(Part.LineSegment(V(28.531671, -11.075812, 0), V(28.531671, 8.924188, 0)), False)
sketch12.addGeometry(Part.LineSegment(V(28.531671, 8.924188, 0), V(24.941928, 8.924188, 0)), False)
sketch12.addGeometry(Part.LineSegment(V(24.941928, 8.924188, 0), V(24.941928, -4.236869, 0)), False)
sketch12.addGeometry(Part.LineSegment(V(24.941928, -4.236869, 0), V(15.867408, 8.924188, 0)), False)
sketch12.addConstraint(Sketcher.Constraint("Block", 1))
sketch12.addConstraint(Sketcher.Constraint("Block", 2))
sketch12.addConstraint(Sketcher.Constraint("Block", 3))
sketch12.addConstraint(Sketcher.Constraint("Block", 4))
sketch12.addConstraint(Sketcher.Constraint("Block", 6))
sketch12.addConstraint(Sketcher.Constraint("Block", 7))
sketch12.addConstraint(Sketcher.Constraint("Block", 8))
sketch12.addConstraint(Sketcher.Constraint("Block", 9))
sketch12.addConstraint(Sketcher.Constraint("Coincident", 0, 2, 1, 2))
sketch12.addConstraint(Sketcher.Constraint("Coincident", 4, 1, 5, 1))
sketch12.addConstraint(Sketcher.Constraint("Coincident", 5, 2, 6, 2))
sketch12.addConstraint(Sketcher.Constraint("Coincident", 9, 1, 0, 1))
sketch12.addConstraint(Sketcher.Constraint("Coincident", 10, 2, 11, 1))
sketch12.addConstraint(Sketcher.Constraint("Coincident", 11, 2, 12, 1))
sketch12.addConstraint(Sketcher.Constraint("Coincident", 12, 2, 13, 1))
sketch12.addConstraint(Sketcher.Constraint("Coincident", 13, 2, 14, 1))
sketch12.addConstraint(Sketcher.Constraint("Coincident", 14, 2, 15, 1))
sketch12.addConstraint(Sketcher.Constraint("Coincident", 15, 2, 16, 1))
sketch12.addConstraint(Sketcher.Constraint("Coincident", 16, 2, 17, 1))
sketch12.addConstraint(Sketcher.Constraint("Coincident", 17, 2, 10, 1))
sketch12.addConstraint(Sketcher.Constraint("Coincident", 18, 2, 19, 1))
sketch12.addConstraint(Sketcher.Constraint("Coincident", 19, 2, 20, 1))
sketch12.addConstraint(Sketcher.Constraint("Coincident", 20, 2, 18, 1))
sketch12.addConstraint(Sketcher.Constraint("Coincident", 21, 2, 22, 1))
sketch12.addConstraint(Sketcher.Constraint("Coincident", 22, 2, 23, 1))
sketch12.addConstraint(Sketcher.Constraint("Coincident", 23, 2, 24, 1))
sketch12.addConstraint(Sketcher.Constraint("Coincident", 24, 2, 25, 1))
sketch12.addConstraint(Sketcher.Constraint("Coincident", 25, 2, 26, 1))
sketch12.addConstraint(Sketcher.Constraint("Coincident", 26, 2, 27, 1))
sketch12.addConstraint(Sketcher.Constraint("Coincident", 27, 2, 28, 1))
sketch12.addConstraint(Sketcher.Constraint("Coincident", 28, 2, 29, 1))
sketch12.addConstraint(Sketcher.Constraint("Coincident", 29, 2, 30, 1))
sketch12.addConstraint(Sketcher.Constraint("Coincident", 30, 2, 21, 1))
sketch12.addConstraint(Sketcher.Constraint("Horizontal", 10))
sketch12.addConstraint(Sketcher.Constraint("Horizontal", 12))
sketch12.addConstraint(Sketcher.Constraint("Horizontal", 14))
sketch12.addConstraint(Sketcher.Constraint("Horizontal", 16))
sketch12.addConstraint(Sketcher.Constraint("Horizontal", 19))
sketch12.addConstraint(Sketcher.Constraint("Horizontal", 21))
sketch12.addConstraint(Sketcher.Constraint("Vertical", 22))
sketch12.addConstraint(Sketcher.Constraint("Horizontal", 23))
sketch12.addConstraint(Sketcher.Constraint("Vertical", 24))
sketch12.addConstraint(Sketcher.Constraint("Horizontal", 26))
sketch12.addConstraint(Sketcher.Constraint("Vertical", 27))
sketch12.addConstraint(Sketcher.Constraint("Horizontal", 28))
sketch12.addConstraint(Sketcher.Constraint("Vertical", 29))
sketch12.addConstraint(Sketcher.Constraint("Horizontal", 12, 2, 15, 2))
sketch12.addConstraint(Sketcher.Constraint("Horizontal", 17, 2, 21, 2))
sketch12.addConstraint(Sketcher.Constraint("Horizontal", 16, 2, 22, 2))
sketch12.addConstraint(Sketcher.Constraint("Horizontal", 23, 2, 25, 2))
sketch12.addConstraint(Sketcher.Constraint("Horizontal", 21, 2, 27, 2))
sketch12.addConstraint(Sketcher.Constraint("Equal", 23, 28))
sketch12.addConstraint(Sketcher.Constraint("Equal", 13, 15))
sketch12.addConstraint(Sketcher.Constraint("Equal", 18, 20))
sketch12.addConstraint(Sketcher.Constraint("DistanceY", 22, 2, 22, 1, Q("20 mm")))
sketch12.addConstraint(Sketcher.Constraint("DistanceX", 12, 1, 12, 2, Q("3.830128 mm")))
sketch12.addConstraint(Sketcher.Constraint("DistanceX", 19, 2, 19, 1, Q("5.99359 mm")))
sketch12.addConstraint(Sketcher.Constraint("DistanceX", 26, 1, 26, 2, Q("3.257212 mm")))
sketch12.addConstraint(Sketcher.Constraint("DistanceX", 12, 2, 10, 2, Q("4.250801 mm")))
sketch12.addConstraint(Sketcher.Constraint("DistanceX", 17, 2, 14, 2, Q("2.688301 mm")))
sketch12.addConstraint(Sketcher.Constraint("DistanceX", 10, 2, 10, 1, Q("3.329327 mm")))
sketch12.addConstraint(Sketcher.Constraint("DistanceX", 14, 1, 14, 2, Q("8.713942 mm")))
sketch12.addConstraint(Sketcher.Constraint("DistanceX", 16, 1, 16, 2, Q("3.834135 mm")))
sketch12.addConstraint(Sketcher.Constraint("DistanceX", 21, 2, 21, 1, Q("3.233173 mm")))
sketch12.addConstraint(Sketcher.Constraint("DistanceX", 23, 1, 23, 2, Q("3.589744 mm")))
sketch12.addConstraint(Sketcher.Constraint("DistanceY", 24, 1, 24, 2, Q("13.120994 mm")))
sketch12.addConstraint(Sketcher.Constraint("DistanceY", 29, 2, 29, 1, Q("13.161058 mm")))
sketch12.addConstraint(Sketcher.Constraint("DistanceY", -1, 1, 10, 2, Q("8.924188 mm")))
sketch12.addConstraint(Sketcher.Constraint("DistanceX", -1, 1, 23, 2, Q("16.223979 mm")))
sketch12.addConstraint(Sketcher.Constraint("DistanceX", -1, 1, 25, 2, Q("25.27446 mm")))
sketch12.addConstraint(Sketcher.Constraint("DistanceX", 5, 2, 11, 2, Q("4.298878 mm")))
sketch12.addConstraint(Sketcher.Constraint("DistanceX", 13, 2, 18, 2, Q("7.355769 mm")))
sketch12.addConstraint(Sketcher.Constraint("DistanceY", 19, 2, 20, 2, Q("6.943109 mm")))
sketch12.addConstraint(Sketcher.Constraint("Distance", 13, Q("4.387193 mm")))
sketch12.addConstraint(Sketcher.Constraint("DistanceY", 18, 2, -1, 1, Q("3.383504 mm")))
pocket7 = body.newObject("PartDesign::Pocket", "Pocket006")
pocket7.Profile = sketch12
pocket7.Length = 1

doc.recompute()
